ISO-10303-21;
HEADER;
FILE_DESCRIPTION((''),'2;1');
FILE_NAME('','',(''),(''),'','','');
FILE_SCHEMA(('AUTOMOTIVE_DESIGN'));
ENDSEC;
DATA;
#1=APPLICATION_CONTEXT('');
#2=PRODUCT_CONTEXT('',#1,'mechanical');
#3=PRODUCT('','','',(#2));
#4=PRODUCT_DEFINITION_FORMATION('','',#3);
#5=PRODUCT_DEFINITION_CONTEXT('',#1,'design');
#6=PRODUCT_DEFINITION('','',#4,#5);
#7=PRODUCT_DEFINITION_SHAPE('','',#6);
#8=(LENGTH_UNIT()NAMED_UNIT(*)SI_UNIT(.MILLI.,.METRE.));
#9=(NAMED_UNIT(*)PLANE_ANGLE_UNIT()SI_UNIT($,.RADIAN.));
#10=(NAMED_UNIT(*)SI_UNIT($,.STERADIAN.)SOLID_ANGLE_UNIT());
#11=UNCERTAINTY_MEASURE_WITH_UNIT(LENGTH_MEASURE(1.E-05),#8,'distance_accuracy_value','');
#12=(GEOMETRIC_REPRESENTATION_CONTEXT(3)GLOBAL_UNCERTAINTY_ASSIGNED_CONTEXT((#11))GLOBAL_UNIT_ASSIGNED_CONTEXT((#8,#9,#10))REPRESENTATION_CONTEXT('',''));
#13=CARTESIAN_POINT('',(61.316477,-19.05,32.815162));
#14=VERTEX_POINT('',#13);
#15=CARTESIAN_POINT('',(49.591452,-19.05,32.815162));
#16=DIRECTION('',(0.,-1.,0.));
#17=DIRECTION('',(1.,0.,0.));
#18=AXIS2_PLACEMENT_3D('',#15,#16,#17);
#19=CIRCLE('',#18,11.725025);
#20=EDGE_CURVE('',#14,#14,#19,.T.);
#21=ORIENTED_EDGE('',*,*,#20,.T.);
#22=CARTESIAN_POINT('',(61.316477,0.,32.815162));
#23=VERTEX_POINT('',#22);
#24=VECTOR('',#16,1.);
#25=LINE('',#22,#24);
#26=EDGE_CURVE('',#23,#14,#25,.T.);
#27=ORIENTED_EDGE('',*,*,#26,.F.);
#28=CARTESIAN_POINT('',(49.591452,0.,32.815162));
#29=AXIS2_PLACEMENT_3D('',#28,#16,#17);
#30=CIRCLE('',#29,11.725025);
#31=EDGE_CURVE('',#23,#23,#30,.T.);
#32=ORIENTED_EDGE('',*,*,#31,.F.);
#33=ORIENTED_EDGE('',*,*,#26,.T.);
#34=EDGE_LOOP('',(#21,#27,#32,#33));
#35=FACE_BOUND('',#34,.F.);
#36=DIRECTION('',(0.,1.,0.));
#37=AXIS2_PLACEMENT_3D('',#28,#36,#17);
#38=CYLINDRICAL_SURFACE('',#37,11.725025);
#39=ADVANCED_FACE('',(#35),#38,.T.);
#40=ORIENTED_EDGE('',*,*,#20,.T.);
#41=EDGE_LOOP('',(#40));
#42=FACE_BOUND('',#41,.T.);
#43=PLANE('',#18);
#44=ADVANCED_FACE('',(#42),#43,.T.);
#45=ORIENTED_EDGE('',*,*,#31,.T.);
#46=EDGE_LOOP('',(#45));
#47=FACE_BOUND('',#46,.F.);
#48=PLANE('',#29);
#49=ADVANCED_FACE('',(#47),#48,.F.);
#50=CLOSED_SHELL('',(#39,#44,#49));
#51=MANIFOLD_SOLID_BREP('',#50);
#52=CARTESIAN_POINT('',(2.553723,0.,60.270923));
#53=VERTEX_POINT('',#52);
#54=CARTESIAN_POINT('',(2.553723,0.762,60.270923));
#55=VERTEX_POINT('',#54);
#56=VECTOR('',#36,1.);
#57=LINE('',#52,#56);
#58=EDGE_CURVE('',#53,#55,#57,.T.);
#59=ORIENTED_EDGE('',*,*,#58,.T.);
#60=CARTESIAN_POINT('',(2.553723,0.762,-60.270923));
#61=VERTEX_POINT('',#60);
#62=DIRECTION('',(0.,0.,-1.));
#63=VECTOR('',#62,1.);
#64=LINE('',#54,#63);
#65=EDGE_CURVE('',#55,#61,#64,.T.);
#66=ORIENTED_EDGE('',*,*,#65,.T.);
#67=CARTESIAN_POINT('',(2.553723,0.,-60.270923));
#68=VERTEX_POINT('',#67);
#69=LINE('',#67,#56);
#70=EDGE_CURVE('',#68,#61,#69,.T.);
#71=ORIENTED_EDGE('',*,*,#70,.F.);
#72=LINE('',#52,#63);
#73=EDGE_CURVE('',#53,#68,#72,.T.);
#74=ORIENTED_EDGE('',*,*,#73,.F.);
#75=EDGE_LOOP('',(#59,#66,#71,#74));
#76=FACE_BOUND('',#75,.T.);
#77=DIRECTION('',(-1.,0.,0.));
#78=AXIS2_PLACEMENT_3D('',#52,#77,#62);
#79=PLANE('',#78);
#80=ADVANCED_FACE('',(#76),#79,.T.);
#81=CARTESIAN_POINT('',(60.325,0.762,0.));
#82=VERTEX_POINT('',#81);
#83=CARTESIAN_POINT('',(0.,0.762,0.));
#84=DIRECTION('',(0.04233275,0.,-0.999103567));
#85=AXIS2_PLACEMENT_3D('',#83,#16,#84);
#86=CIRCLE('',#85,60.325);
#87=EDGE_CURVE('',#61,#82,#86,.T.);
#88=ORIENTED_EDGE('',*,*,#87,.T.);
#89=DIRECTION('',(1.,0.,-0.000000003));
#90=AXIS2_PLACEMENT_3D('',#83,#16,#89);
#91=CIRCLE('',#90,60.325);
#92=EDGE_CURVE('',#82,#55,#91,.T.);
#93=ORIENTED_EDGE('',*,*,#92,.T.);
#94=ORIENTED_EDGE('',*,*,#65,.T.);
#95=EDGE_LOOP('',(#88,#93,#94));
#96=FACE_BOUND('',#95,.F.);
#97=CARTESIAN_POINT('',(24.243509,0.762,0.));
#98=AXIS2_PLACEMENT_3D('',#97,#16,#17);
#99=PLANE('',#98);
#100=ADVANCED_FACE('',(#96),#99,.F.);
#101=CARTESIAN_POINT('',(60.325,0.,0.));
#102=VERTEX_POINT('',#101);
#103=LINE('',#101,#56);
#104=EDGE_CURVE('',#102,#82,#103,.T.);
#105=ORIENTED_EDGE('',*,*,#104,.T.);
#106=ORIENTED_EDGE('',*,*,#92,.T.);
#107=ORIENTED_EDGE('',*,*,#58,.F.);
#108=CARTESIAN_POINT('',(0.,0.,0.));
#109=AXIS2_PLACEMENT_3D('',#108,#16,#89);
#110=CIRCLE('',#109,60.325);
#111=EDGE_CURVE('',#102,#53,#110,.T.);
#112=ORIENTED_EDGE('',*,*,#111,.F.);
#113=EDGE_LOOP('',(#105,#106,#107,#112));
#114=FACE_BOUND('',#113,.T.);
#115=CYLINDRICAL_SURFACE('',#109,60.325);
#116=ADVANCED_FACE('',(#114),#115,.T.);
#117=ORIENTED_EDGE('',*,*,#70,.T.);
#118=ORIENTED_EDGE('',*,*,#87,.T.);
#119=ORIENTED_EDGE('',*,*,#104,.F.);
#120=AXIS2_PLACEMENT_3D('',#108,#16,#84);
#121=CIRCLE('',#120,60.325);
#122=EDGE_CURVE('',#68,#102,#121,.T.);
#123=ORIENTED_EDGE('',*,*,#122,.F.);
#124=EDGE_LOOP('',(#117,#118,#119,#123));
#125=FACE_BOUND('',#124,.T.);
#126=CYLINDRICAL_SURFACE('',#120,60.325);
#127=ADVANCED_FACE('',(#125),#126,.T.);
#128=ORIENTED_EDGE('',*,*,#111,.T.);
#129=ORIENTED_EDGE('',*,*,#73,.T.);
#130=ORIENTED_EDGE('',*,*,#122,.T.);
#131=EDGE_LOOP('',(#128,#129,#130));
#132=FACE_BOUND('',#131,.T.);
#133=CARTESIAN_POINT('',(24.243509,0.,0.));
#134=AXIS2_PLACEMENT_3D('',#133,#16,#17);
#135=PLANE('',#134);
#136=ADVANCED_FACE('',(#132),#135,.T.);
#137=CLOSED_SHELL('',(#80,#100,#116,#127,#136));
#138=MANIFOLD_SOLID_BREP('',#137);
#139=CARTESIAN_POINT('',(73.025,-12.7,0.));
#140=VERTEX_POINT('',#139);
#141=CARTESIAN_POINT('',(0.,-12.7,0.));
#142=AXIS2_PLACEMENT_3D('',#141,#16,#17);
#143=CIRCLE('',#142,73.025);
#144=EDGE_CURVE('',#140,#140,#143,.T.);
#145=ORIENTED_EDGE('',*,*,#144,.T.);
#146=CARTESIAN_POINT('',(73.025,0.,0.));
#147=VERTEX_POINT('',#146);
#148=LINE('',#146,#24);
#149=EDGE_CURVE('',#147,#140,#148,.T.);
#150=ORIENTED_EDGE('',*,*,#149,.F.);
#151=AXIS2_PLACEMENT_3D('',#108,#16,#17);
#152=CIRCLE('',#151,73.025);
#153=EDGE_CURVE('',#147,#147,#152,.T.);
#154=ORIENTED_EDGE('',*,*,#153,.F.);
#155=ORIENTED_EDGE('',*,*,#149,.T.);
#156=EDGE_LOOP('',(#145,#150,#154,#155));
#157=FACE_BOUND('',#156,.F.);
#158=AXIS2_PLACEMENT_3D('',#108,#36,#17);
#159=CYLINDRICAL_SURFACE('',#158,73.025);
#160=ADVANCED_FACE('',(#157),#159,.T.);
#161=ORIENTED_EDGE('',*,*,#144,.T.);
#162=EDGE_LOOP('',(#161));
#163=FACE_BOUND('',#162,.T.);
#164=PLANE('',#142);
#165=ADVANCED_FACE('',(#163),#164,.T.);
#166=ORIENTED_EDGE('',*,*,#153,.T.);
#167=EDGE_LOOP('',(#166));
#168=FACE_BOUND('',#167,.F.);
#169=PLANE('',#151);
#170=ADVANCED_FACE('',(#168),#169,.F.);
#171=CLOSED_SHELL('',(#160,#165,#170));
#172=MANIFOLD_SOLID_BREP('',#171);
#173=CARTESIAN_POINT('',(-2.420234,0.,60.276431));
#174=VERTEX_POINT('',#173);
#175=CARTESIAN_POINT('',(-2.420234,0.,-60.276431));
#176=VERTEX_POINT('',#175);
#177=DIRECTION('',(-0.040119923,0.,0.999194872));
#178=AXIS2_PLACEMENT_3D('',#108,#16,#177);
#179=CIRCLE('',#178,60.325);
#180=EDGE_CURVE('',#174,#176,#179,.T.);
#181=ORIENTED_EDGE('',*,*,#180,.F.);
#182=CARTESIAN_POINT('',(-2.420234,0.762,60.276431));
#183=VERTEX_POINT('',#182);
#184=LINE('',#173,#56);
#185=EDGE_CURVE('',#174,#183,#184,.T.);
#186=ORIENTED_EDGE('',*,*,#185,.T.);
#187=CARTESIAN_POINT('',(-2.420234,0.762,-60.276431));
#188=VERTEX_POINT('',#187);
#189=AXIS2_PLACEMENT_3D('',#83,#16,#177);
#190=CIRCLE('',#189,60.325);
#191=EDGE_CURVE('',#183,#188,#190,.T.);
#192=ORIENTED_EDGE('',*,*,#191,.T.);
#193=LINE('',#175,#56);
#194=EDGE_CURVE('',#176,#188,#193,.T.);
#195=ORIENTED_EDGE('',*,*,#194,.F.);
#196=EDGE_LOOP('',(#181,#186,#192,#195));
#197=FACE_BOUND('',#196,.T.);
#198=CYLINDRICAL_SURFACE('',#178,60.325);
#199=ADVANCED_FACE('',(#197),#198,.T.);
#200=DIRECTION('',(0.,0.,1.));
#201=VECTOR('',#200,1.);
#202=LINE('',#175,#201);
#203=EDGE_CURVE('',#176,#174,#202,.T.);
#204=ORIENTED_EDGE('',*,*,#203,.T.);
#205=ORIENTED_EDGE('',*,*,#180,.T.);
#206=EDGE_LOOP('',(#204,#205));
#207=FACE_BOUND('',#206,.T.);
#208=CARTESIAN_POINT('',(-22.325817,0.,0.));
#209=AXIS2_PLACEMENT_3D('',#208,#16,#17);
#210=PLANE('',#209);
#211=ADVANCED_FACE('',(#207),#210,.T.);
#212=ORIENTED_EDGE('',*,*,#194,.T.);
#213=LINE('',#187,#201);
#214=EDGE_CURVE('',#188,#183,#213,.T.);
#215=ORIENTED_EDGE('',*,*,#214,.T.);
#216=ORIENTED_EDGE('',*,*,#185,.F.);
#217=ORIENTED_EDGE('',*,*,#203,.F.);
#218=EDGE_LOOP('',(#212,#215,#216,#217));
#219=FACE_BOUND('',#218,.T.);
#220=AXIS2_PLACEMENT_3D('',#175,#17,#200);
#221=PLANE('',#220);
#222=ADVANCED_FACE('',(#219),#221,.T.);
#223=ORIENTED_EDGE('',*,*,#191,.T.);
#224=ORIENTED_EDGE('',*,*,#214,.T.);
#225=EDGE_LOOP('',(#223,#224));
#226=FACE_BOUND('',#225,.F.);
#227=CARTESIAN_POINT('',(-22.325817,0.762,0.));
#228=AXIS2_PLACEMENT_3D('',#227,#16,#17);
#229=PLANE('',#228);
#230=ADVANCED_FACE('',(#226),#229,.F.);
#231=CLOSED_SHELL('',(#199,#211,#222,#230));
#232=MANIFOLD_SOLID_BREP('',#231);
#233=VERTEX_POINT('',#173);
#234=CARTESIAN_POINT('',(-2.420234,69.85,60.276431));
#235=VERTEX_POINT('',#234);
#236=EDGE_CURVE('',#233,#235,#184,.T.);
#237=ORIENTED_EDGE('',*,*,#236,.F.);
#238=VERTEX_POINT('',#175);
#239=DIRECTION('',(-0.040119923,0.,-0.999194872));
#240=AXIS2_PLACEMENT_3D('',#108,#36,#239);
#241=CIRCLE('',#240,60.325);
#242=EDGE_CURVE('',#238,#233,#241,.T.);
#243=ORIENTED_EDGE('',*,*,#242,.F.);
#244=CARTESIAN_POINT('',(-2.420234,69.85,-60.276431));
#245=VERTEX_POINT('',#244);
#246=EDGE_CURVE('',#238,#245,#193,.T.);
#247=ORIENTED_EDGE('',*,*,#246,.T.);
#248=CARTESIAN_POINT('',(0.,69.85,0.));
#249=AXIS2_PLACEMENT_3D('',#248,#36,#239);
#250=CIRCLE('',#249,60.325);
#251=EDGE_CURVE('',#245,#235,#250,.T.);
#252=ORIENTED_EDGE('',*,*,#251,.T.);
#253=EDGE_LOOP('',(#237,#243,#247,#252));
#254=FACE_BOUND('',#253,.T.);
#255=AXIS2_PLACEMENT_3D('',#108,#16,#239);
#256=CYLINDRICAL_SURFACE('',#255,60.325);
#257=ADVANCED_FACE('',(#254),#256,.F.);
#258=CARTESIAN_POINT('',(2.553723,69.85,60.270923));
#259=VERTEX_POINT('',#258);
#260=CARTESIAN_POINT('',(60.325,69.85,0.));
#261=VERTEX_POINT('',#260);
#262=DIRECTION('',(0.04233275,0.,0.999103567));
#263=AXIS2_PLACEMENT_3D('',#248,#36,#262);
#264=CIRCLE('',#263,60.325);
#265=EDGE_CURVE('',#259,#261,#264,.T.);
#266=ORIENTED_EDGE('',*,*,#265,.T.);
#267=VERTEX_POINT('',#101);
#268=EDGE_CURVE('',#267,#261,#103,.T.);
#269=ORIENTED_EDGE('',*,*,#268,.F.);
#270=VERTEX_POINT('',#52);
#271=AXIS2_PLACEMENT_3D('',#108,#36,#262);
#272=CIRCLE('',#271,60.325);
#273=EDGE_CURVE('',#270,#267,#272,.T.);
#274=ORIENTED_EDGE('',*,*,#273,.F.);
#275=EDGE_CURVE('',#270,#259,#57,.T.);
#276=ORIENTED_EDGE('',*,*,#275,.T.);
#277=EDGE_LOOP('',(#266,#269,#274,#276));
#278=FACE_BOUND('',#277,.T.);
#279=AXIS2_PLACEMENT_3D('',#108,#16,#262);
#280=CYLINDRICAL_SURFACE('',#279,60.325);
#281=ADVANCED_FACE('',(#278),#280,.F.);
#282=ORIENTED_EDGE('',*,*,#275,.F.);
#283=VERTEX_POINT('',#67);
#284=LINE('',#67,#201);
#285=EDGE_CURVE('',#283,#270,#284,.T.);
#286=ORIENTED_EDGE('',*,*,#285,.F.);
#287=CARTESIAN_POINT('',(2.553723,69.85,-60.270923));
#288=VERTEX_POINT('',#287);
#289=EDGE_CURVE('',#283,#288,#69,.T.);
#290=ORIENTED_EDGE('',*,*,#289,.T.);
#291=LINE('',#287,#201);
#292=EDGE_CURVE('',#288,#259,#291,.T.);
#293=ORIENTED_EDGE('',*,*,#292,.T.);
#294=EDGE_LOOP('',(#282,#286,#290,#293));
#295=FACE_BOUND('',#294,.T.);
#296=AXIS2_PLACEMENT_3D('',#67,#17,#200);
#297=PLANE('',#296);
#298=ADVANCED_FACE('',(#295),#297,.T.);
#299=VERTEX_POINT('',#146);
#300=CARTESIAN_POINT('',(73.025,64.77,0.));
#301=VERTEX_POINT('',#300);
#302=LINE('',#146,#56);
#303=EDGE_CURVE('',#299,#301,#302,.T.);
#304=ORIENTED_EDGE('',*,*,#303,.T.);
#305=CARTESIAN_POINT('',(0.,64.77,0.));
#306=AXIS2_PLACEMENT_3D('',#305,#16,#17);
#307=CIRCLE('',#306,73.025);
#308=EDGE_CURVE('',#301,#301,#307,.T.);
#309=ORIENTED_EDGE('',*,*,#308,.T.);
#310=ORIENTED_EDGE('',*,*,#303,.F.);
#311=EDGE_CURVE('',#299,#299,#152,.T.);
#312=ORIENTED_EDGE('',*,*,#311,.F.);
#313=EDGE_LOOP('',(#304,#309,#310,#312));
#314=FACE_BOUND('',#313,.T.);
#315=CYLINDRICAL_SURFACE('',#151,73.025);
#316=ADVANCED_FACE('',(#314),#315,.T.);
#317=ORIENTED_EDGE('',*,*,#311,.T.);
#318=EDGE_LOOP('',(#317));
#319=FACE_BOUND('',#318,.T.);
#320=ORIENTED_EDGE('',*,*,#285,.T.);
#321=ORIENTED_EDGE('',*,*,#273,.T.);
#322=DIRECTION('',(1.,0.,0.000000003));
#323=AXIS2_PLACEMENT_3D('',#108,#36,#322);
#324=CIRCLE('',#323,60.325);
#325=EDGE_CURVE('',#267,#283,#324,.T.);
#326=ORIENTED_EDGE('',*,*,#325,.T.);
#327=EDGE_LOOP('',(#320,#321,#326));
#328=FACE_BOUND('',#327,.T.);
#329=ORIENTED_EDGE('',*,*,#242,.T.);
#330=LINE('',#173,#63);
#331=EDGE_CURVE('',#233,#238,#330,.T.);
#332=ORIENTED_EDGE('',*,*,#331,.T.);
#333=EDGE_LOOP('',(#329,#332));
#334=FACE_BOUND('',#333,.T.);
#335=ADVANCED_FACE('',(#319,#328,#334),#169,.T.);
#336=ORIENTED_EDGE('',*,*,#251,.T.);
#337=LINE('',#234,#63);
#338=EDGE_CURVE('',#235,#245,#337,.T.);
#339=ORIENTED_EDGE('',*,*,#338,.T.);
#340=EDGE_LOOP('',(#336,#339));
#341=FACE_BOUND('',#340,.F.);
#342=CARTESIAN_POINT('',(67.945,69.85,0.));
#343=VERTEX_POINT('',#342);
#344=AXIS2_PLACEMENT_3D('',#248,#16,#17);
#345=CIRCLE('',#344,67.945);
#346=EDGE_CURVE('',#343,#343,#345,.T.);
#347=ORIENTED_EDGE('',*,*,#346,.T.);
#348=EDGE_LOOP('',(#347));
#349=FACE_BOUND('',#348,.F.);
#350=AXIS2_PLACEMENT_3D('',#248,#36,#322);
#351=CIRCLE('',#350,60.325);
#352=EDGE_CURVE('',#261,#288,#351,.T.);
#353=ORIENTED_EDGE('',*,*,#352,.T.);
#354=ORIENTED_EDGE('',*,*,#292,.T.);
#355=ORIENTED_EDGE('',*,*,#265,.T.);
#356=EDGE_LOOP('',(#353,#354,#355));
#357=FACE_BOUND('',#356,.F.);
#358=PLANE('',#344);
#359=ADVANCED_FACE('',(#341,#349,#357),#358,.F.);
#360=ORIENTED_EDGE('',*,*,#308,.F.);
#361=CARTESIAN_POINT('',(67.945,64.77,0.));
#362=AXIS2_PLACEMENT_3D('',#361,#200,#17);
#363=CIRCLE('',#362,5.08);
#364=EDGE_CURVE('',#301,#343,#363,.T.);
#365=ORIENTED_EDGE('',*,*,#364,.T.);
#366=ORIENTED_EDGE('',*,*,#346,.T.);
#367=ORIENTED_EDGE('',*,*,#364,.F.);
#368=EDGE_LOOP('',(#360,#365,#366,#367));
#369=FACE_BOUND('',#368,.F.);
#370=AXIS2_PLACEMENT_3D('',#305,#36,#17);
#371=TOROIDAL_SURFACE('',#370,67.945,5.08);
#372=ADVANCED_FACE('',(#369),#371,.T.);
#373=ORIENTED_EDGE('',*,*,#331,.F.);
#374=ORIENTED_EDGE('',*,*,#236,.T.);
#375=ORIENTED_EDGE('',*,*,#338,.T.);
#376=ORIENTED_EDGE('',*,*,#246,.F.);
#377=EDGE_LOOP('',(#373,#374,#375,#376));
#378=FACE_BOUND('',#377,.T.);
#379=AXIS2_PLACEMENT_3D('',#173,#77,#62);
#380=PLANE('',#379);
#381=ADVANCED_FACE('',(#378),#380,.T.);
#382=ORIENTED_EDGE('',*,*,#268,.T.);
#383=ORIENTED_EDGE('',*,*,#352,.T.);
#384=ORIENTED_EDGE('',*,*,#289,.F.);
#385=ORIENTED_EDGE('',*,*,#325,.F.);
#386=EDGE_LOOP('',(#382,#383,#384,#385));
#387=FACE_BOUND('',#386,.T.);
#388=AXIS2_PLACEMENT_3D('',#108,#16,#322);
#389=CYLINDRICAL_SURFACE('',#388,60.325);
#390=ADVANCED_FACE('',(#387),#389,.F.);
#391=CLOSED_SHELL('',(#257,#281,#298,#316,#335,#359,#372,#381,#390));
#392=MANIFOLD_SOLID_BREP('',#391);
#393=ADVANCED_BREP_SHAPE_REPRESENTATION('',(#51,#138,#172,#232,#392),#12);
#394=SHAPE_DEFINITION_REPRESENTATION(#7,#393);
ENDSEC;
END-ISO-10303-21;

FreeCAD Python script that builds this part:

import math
import FreeCAD as App
import Part
import Sketcher
from FreeCAD import Vector
Q = App.Units.Quantity


def edges_at(feature, points):
    """Names of the edges that pass closest to the given points."""
    edges = feature.Shape.Edges
    near = lambda p: min(range(len(edges)), key=lambda i: edges[i].distToShape(Part.Vertex(*p))[0])
    return sorted({f"Edge{near(p) + 1}" for p in points})

doc = App.newDocument("Part")
body = doc.addObject("PartDesign::Body", "Body")

sketch1 = body.newObject("Sketcher::SketchObject", "Sketch")
sketch1.AttachmentSupport = (doc.getObject("XZ_Plane"), [""])
sketch1.MapMode = "FlatFace"
sketch1.addGeometry([
    Part.Circle(Vector(0, 0, 0), Vector(0, 0, 1), 73),
    Part.ArcOfCircle(Part.Circle(Vector(0, 0, 0), Vector(0, 0, 1), 60), math.radians(92), math.radians(268)),
    Part.LineSegment(Vector(-2, 60, 0), Vector(-2, -60, 0)),
    Part.ArcOfCircle(Part.Circle(Vector(0, 0, 0), Vector(0, 0, 1), 60), math.radians(-88), math.radians(0)),
    Part.LineSegment(Vector(3, -60, 0), Vector(3, 60, 0)),
    Part.ArcOfCircle(Part.Circle(Vector(0, 0, 0), Vector(0, 0, 1), 60), math.radians(0), math.radians(88)),
], False)
sketch1.addConstraint([
    Sketcher.Constraint("Coincident", 1, 1, 2, 1),
    Sketcher.Constraint("Coincident", 2, 2, 1, 2),
    Sketcher.Constraint("Coincident", 3, 1, 4, 1),
    Sketcher.Constraint("Coincident", 4, 2, 5, 2),
    Sketcher.Constraint("Tangent", 5, 1, 3, 2),
    Sketcher.Constraint("Vertical", 2),
    Sketcher.Constraint("Vertical", 4),
    Sketcher.Constraint("Coincident", 0, 3, -1, 1),
    Sketcher.Constraint("Coincident", 1, 3, -1, 1),
    Sketcher.Constraint("Coincident", 3, 3, -1, 1),
    Sketcher.Constraint("Equal", 1, 3),
    Sketcher.Constraint("Equal", 3, 5),
    Sketcher.Constraint("PointOnObject", 5, 1, -1),
    Sketcher.Constraint("Diameter", 0, Q("5.75 in")),
    Sketcher.Constraint("Radius", 1, Q("2.375 in")),
    Sketcher.Constraint("DistanceY", 2, 2, 2, 1, 120.552862),
    Sketcher.Constraint("DistanceY", 4, 1, 4, 2, 120.541846),
])
pad1 = body.newObject("PartDesign::Pad", "Pad")
pad1.Profile = sketch1
pad1.Length = Q("2.75 in")
pad1.Reversed = True
doc.recompute()

fillet = body.newObject("PartDesign::Fillet", "Fillet")
fillet.Base = (pad1, edges_at(pad1, [(-73.025, 69.85, 0)]))
fillet.Radius = Q("0.2 in")
body2 = doc.addObject("PartDesign::Body", "Body001")
body2.AllowCompound = True

sketch2 = body2.newObject("Sketcher::SketchObject", "Sketch001")
sketch2.AttachmentSupport = (doc.getObject("XZ_Plane001"), [""])
sketch2.MapMode = "FlatFace"
sketch2.addGeometry([
    Part.ArcOfCircle(Part.Circle(Vector(0, 0, 0), Vector(0, 0, 1), 60), math.radians(-88), math.radians(0)),
    Part.ArcOfCircle(Part.Circle(Vector(0, 0, 0), Vector(0, 0, 1), 60), math.radians(0), math.radians(88)),
    Part.LineSegment(Vector(3, 60, 0), Vector(3, -60, 0)),
    Part.LineSegment(Vector(-2, -60, 0), Vector(-2, 60, 0)),
    Part.ArcOfCircle(Part.Circle(Vector(0, 0, 0), Vector(0, 0, 1), 60), math.radians(92), math.radians(268)),
], False)
sketch2.addConstraint([
    Sketcher.Constraint("Tangent", 0, 2, 1, 1),
    Sketcher.Constraint("Coincident", 1, 2, 2, 1),
    Sketcher.Constraint("Coincident", 2, 2, 0, 1),
    Sketcher.Constraint("Coincident", 3, 1, 4, 2),
    Sketcher.Constraint("Coincident", 4, 1, 3, 2),
    Sketcher.Constraint("Vertical", 2),
    Sketcher.Constraint("Vertical", 3),
    Sketcher.Constraint("Coincident", 0, 3, -1, 1),
    Sketcher.Constraint("Coincident", 4, 3, -1, 1),
    Sketcher.Constraint("Equal", 0, 1),
    Sketcher.Constraint("Equal", 1, 4),
    Sketcher.Constraint("PointOnObject", 0, 2, -1),
    Sketcher.Constraint("Radius", 0, Q("2.375 in")),
    Sketcher.Constraint("DistanceY", 2, 2, 2, 1, 120.541846),
    Sketcher.Constraint("DistanceY", 3, 1, 3, 2, 120.552862),
])
pad2 = body2.newObject("PartDesign::Pad", "Pad001")
pad2.Profile = sketch2
pad2.Length = Q("0.03 in")
pad2.Reversed = True
body3 = doc.addObject("PartDesign::Body", "Body002")

sketch3 = body3.newObject("Sketcher::SketchObject", "Sketch002")
sketch3.AttachmentSupport = (doc.getObject("XZ_Plane002"), [""])
sketch3.MapMode = "FlatFace"
sketch3.addGeometry(Part.Circle(Vector(0, 0, 0), Vector(0, 0, 1), 73), False)
sketch3.addConstraint([
    Sketcher.Constraint("Coincident", 0, 3, -1, 1),
    Sketcher.Constraint("Diameter", 0, Q("5.75 in")),
])
pad3 = body3.newObject("PartDesign::Pad", "Pad002")
pad3.Profile = sketch3
pad3.Length = Q("0.5 in")
body4 = doc.addObject("PartDesign::Body", "Body003")

sketch4 = body4.newObject("Sketcher::SketchObject", "Sketch003")
sketch4.AttachmentSupport = (doc.getObject("XZ_Plane003"), [""])
sketch4.MapMode = "FlatFace"
sketch4.addGeometry(Part.Circle(Vector(50, 33, 0), Vector(0, 0, 1), 12), False)
sketch4.addConstraint([
    Sketcher.Constraint("Diameter", 0, 23.45005),
    Sketcher.Constraint("DistanceX", -1, 1, 0, 3, 49.591452),
    Sketcher.Constraint("DistanceY", -1, 1, 0, 3, 32.815162),
])
pad4 = body4.newObject("PartDesign::Pad", "Pad003")
pad4.Profile = sketch4
pad4.Length = Q("0.75 in")

doc.recompute()
